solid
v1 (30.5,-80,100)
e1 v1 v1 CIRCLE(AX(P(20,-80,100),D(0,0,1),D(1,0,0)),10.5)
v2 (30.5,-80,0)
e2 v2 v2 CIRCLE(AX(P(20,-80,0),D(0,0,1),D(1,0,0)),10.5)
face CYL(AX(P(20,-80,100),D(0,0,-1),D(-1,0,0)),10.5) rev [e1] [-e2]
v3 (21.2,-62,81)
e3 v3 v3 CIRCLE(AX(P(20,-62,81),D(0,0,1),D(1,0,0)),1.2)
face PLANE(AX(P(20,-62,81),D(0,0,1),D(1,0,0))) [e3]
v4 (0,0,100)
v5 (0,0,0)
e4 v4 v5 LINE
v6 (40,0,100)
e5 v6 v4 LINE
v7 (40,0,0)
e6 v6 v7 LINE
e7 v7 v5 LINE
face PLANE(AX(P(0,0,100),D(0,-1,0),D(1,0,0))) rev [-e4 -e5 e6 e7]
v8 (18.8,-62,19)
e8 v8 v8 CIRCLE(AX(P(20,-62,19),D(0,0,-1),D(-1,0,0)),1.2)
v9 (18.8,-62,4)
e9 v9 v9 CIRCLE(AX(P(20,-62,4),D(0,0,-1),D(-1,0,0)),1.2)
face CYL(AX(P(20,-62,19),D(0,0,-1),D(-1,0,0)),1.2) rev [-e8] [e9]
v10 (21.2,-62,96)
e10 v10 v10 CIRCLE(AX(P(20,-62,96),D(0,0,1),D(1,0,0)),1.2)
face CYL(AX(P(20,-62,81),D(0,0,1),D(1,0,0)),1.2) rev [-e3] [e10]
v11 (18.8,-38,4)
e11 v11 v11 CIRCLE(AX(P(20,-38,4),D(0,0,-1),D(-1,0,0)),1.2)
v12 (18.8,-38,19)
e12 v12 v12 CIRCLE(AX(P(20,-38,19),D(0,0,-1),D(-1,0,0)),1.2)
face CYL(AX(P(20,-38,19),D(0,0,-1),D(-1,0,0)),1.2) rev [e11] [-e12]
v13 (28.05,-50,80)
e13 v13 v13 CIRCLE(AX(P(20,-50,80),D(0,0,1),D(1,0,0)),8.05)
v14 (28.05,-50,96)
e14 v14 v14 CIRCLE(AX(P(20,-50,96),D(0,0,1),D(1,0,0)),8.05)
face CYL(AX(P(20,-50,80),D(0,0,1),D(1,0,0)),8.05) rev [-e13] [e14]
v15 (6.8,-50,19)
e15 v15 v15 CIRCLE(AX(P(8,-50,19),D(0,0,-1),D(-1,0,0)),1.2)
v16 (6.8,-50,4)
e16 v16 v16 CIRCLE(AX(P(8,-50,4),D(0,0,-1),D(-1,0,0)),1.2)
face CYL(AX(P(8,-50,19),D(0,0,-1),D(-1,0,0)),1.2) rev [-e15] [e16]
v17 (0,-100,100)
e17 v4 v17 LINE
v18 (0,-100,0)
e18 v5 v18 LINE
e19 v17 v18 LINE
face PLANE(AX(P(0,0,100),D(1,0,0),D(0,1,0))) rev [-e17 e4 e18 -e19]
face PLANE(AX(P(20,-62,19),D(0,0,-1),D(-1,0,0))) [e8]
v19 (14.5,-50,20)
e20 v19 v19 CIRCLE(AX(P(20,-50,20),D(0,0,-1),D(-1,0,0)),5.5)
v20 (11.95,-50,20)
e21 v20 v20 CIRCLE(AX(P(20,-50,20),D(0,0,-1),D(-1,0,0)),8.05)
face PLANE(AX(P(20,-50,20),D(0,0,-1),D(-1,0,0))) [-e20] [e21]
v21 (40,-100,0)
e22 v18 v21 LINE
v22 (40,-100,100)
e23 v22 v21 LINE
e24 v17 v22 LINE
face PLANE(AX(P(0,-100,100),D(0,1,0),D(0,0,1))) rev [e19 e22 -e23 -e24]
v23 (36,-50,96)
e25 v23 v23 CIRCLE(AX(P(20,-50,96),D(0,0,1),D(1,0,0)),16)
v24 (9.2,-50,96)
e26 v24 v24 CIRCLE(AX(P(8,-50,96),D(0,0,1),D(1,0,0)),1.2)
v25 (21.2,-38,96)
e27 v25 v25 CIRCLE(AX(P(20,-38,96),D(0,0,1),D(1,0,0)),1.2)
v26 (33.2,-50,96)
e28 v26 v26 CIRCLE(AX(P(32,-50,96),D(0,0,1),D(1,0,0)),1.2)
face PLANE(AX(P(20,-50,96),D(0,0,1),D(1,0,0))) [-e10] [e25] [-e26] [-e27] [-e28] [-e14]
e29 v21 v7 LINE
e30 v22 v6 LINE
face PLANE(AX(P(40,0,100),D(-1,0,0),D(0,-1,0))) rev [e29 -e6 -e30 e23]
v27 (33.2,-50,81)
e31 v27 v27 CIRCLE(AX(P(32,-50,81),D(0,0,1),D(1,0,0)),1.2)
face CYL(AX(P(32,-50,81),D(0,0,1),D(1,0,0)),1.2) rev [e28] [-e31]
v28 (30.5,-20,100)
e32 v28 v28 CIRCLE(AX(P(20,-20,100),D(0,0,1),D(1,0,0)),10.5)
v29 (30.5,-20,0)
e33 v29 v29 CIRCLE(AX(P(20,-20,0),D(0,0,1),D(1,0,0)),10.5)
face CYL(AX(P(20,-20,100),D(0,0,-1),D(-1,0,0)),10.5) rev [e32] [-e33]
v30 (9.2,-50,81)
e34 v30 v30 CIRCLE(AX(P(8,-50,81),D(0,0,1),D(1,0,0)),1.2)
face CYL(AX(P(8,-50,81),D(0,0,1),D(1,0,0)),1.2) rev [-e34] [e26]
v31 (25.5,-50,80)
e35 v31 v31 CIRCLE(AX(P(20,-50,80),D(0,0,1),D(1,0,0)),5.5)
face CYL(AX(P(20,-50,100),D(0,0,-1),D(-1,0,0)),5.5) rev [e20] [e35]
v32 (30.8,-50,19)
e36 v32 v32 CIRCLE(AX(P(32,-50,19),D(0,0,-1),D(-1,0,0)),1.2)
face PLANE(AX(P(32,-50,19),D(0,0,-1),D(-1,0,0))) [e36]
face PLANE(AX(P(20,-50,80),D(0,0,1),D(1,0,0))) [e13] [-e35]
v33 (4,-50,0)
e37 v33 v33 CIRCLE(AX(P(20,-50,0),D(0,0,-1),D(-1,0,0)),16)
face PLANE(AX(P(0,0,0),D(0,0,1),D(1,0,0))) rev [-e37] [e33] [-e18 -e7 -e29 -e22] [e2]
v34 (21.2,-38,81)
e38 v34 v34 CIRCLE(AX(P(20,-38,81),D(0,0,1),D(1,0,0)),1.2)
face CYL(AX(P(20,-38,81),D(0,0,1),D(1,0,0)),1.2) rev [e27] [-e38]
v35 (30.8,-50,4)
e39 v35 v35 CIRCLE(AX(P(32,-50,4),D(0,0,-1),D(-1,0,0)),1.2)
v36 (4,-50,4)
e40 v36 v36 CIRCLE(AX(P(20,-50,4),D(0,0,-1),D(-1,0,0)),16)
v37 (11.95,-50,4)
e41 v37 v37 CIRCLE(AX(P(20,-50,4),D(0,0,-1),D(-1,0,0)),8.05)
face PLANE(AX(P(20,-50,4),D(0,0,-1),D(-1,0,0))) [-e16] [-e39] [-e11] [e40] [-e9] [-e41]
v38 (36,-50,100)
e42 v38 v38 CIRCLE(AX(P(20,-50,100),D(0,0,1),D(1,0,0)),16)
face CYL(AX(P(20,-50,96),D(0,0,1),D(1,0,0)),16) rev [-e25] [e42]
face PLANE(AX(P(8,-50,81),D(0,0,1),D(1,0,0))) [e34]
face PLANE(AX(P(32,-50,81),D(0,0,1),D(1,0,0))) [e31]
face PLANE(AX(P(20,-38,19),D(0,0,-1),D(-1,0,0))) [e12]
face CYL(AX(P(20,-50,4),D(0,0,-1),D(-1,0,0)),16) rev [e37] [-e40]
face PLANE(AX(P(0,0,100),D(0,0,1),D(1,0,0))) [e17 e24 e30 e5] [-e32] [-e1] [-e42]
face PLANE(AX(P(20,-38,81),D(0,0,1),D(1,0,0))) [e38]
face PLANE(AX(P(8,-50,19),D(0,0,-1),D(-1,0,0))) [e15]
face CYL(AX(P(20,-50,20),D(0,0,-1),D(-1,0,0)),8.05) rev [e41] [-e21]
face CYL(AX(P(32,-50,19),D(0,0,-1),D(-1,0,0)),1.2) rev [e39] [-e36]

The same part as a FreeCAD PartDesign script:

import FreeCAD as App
import Part
import Sketcher

V = App.Vector
Q = App.Units.Quantity

doc = App.newDocument("Part")
body = doc.addObject("PartDesign::Body", "Body")

sketch1 = doc.addObject("Sketcher::SketchObject", "Sketch")
body.addObject(sketch1)
sketch1.AttachmentSupport = (doc.XY_Plane, [""])
sketch1.MapMode = "FlatFace"
sketch1.addGeometry(Part.LineSegment(V(0, 0, 0), V(0, -100, 0)), False)
sketch1.addGeometry(Part.LineSegment(V(0, -100, 0), V(40, -100, 0)), False)
sketch1.addGeometry(Part.LineSegment(V(40, -100, 0), V(40, 0, 0)), False)
sketch1.addGeometry(Part.LineSegment(V(40, 0, 0), V(0, 0, 0)), False)
sketch1.addGeometry(Part.Circle(V(20, -80, 0), V(0, 0, 1), 10), False)
sketch1.addGeometry(Part.Circle(V(20, -50, 0), V(0, 0, 1), 6), False)
sketch1.addGeometry(Part.Circle(V(20, -20, 0), V(0, 0, 1), 10), False)
sketch1.addConstraint(Sketcher.Constraint("Coincident", 0, 2, 1, 1))
sketch1.addConstraint(Sketcher.Constraint("Coincident", 1, 2, 2, 1))
sketch1.addConstraint(Sketcher.Constraint("Coincident", 2, 2, 3, 1))
sketch1.addConstraint(Sketcher.Constraint("Coincident", 3, 2, 0, 1))
sketch1.addConstraint(Sketcher.Constraint("Vertical", 0))
sketch1.addConstraint(Sketcher.Constraint("Horizontal", 1))
sketch1.addConstraint(Sketcher.Constraint("Vertical", 2))
sketch1.addConstraint(Sketcher.Constraint("Horizontal", 3))
sketch1.addConstraint(Sketcher.Constraint("Coincident", 3, 2, -1, 1))
sketch1.addConstraint(Sketcher.Constraint("Equal", 4, 6))
sketch1.addConstraint(Sketcher.Constraint("Vertical", 4, 3, 5, 3))
sketch1.addConstraint(Sketcher.Constraint("Vertical", 5, 3, 6, 3))
sketch1.addConstraint(Sketcher.Constraint("Diameter", 4, Q("21 mm")))
sketch1.addConstraint(Sketcher.Constraint("Diameter", 5, Q("11 mm")))
sketch1.addConstraint(Sketcher.Constraint("DistanceX", 1, 1, 1, 2, Q("40 mm")))
sketch1.addConstraint(Sketcher.Constraint("DistanceY", 0, 2, 0, 1, Q("100 mm")))
sketch1.addConstraint(Sketcher.Constraint("DistanceX", -1, 1, 4, 3, Q("20 mm")))
sketch1.addConstraint(Sketcher.Constraint("DistanceY", 4, 3, -1, 1, Q("80 mm")))
sketch1.addConstraint(Sketcher.Constraint("DistanceY", 5, 3, -1, 1, Q("50 mm")))
sketch1.addConstraint(Sketcher.Constraint("DistanceY", 6, 3, -1, 1, Q("20 mm")))
pad1 = doc.addObject("PartDesign::Pad", "Pad")
body.addObject(pad1)
pad1.Profile = sketch1
pad1.Length = 100

sketch2 = doc.addObject("Sketcher::SketchObject", "Sketch001")
body.addObject(sketch2)
sketch2.AttachmentSupport = (doc.XY_Plane, [""])
sketch2.MapMode = "FlatFace"
sketch2.AttachmentOffset = App.Placement(V(0, 0, 100), App.Rotation())
sketch2.addGeometry(Part.Circle(V(20, -50, 0), V(0, 0, 1), 16), False)
sketch2.addConstraint(Sketcher.Constraint("Diameter", 0, Q("32 mm")))
sketch2.addConstraint(Sketcher.Constraint("DistanceX", -1, 1, 0, 3, Q("20 mm")))
sketch2.addConstraint(Sketcher.Constraint("DistanceY", 0, 3, -1, 1, Q("50 mm")))
pocket1 = doc.addObject("PartDesign::Pocket", "Pocket")
body.addObject(pocket1)
pocket1.Profile = sketch2
pocket1.Length = 4

sketch3 = doc.addObject("Sketcher::SketchObject", "Sketch002")
body.addObject(sketch3)
sketch3.AttachmentSupport = (doc.XY_Plane, [""])
sketch3.MapMode = "FlatFace"
sketch3.AttachmentOffset = App.Placement(V(0, 0, 96), App.Rotation())
sketch3.addGeometry(Part.Circle(V(20, -50, 0), V(0, 0, 1), 8), False)
sketch3.addConstraint(Sketcher.Constraint("Diameter", 0, Q("16.1 mm")))
sketch3.addConstraint(Sketcher.Constraint("DistanceX", -1, 1, 0, 3, Q("20 mm")))
sketch3.addConstraint(Sketcher.Constraint("DistanceY", 0, 3, -1, 1, Q("50 mm")))
pocket2 = doc.addObject("PartDesign::Pocket", "Pocket001")
body.addObject(pocket2)
pocket2.Profile = sketch3
pocket2.Length = 16

sketch4 = doc.addObject("Sketcher::SketchObject", "Sketch003")
body.addObject(sketch4)
sketch4.AttachmentSupport = (doc.XY_Plane, [""])
sketch4.MapMode = "FlatFace"
sketch4.AttachmentOffset = App.Placement(V(0, 0, 96), App.Rotation())
sketch4.addGeometry(Part.Circle(V(20, -38, 0), V(0, 0, 1), 1.2), False)
sketch4.addGeometry(Part.Circle(V(8, -50, 0), V(0, 0, 1), 1.2), False)
sketch4.addGeometry(Part.Circle(V(32, -50, 0), V(0, 0, 1), 1.2), False)
sketch4.addGeometry(Part.Circle(V(20, -62, 0), V(0, 0, 1), 1.2), False)
sketch4.addConstraint(Sketcher.Constraint("Equal", 0, 1))
sketch4.addConstraint(Sketcher.Constraint("Equal", 1, 2))
sketch4.addConstraint(Sketcher.Constraint("Equal", 2, 3))
sketch4.addConstraint(Sketcher.Constraint("Horizontal", 1, 3, 2, 3))
sketch4.addConstraint(Sketcher.Constraint("Vertical", 0, 3, 3, 3))
sketch4.addConstraint(Sketcher.Constraint("Diameter", 0, Q("2.4 mm")))
sketch4.addConstraint(Sketcher.Constraint("DistanceX", -1, 1, 0, 3, Q("20 mm")))
sketch4.addConstraint(Sketcher.Constraint("DistanceY", 0, 3, -1, 1, Q("38 mm")))
sketch4.addConstraint(Sketcher.Constraint("DistanceX", -1, 1, 1, 3, Q("8 mm")))
sketch4.addConstraint(Sketcher.Constraint("DistanceY", 1, 3, -1, 1, Q("50 mm")))
sketch4.addConstraint(Sketcher.Constraint("DistanceX", -1, 1, 2, 3, Q("32 mm")))
sketch4.addConstraint(Sketcher.Constraint("DistanceY", 3, 3, -1, 1, Q("62 mm")))
pocket3 = doc.addObject("PartDesign::Pocket", "Pocket002")
body.addObject(pocket3)
pocket3.Profile = sketch4
pocket3.Length = 15

sketch5 = doc.addObject("Sketcher::SketchObject", "Sketch004")
body.addObject(sketch5)
sketch5.AttachmentSupport = (doc.XY_Plane, [""])
sketch5.MapMode = "FlatFace"
sketch5.AttachmentOffset = App.Placement(V(0, 0, 4), App.Rotation())
sketch5.addGeometry(Part.Circle(V(20, -50, 0), V(0, 0, 1), 16), False)
sketch5.addConstraint(Sketcher.Constraint("Diameter", 0, Q("32 mm")))
sketch5.addConstraint(Sketcher.Constraint("DistanceX", -1, 1, 0, 3, Q("20 mm")))
sketch5.addConstraint(Sketcher.Constraint("DistanceY", 0, 3, -1, 1, Q("50 mm")))
pocket4 = doc.addObject("PartDesign::Pocket", "Pocket003")
body.addObject(pocket4)
pocket4.Profile = sketch5
pocket4.Length = 4

sketch6 = doc.addObject("Sketcher::SketchObject", "Sketch005")
body.addObject(sketch6)
sketch6.AttachmentSupport = (doc.XY_Plane, [""])
sketch6.MapMode = "FlatFace"
sketch6.AttachmentOffset = App.Placement(V(0, 0, 20), App.Rotation())
sketch6.addGeometry(Part.Circle(V(20, -50, 0), V(0, 0, 1), 8), False)
sketch6.addConstraint(Sketcher.Constraint("Diameter", 0, Q("16.1 mm")))
sketch6.addConstraint(Sketcher.Constraint("DistanceX", -1, 1, 0, 3, Q("20 mm")))
sketch6.addConstraint(Sketcher.Constraint("DistanceY", 0, 3, -1, 1, Q("50 mm")))
pocket5 = doc.addObject("PartDesign::Pocket", "Pocket004")
body.addObject(pocket5)
pocket5.Profile = sketch6
pocket5.Length = 16

sketch7 = doc.addObject("Sketcher::SketchObject", "Sketch006")
body.addObject(sketch7)
sketch7.AttachmentSupport = (doc.XY_Plane, [""])
sketch7.MapMode = "FlatFace"
sketch7.AttachmentOffset = App.Placement(V(0, 0, 19), App.Rotation())
sketch7.addGeometry(Part.Circle(V(20, -62, 0), V(0, 0, 1), 1.2), False)
sketch7.addGeometry(Part.Circle(V(32, -50, 0), V(0, 0, 1), 1.2), False)
sketch7.addGeometry(Part.Circle(V(8, -50, 0), V(0, 0, 1), 1.2), False)
sketch7.addGeometry(Part.Circle(V(20, -38, 0), V(0, 0, 1), 1.2), False)
sketch7.addConstraint(Sketcher.Constraint("Equal", 0, 1))
sketch7.addConstraint(Sketcher.Constraint("Equal", 1, 2))
sketch7.addConstraint(Sketcher.Constraint("Equal", 2, 3))
sketch7.addConstraint(Sketcher.Constraint("Horizontal", 1, 3, 2, 3))
sketch7.addConstraint(Sketcher.Constraint("Vertical", 0, 3, 3, 3))
sketch7.addConstraint(Sketcher.Constraint("Diameter", 0, Q("2.4 mm")))
sketch7.addConstraint(Sketcher.Constraint("DistanceX", -1, 1, 0, 3, Q("20 mm")))
sketch7.addConstraint(Sketcher.Constraint("DistanceY", 0, 3, -1, 1, Q("62 mm")))
sketch7.addConstraint(Sketcher.Constraint("DistanceX", -1, 1, 1, 3, Q("32 mm")))
sketch7.addConstraint(Sketcher.Constraint("DistanceY", 1, 3, -1, 1, Q("50 mm")))
sketch7.addConstraint(Sketcher.Constraint("DistanceX", -1, 1, 2, 3, Q("8 mm")))
sketch7.addConstraint(Sketcher.Constraint("DistanceY", 3, 3, -1, 1, Q("38 mm")))
pocket6 = doc.addObject("PartDesign::Pocket", "Pocket005")
body.addObject(pocket6)
pocket6.Profile = sketch7
pocket6.Length = 15

doc.recompute()
